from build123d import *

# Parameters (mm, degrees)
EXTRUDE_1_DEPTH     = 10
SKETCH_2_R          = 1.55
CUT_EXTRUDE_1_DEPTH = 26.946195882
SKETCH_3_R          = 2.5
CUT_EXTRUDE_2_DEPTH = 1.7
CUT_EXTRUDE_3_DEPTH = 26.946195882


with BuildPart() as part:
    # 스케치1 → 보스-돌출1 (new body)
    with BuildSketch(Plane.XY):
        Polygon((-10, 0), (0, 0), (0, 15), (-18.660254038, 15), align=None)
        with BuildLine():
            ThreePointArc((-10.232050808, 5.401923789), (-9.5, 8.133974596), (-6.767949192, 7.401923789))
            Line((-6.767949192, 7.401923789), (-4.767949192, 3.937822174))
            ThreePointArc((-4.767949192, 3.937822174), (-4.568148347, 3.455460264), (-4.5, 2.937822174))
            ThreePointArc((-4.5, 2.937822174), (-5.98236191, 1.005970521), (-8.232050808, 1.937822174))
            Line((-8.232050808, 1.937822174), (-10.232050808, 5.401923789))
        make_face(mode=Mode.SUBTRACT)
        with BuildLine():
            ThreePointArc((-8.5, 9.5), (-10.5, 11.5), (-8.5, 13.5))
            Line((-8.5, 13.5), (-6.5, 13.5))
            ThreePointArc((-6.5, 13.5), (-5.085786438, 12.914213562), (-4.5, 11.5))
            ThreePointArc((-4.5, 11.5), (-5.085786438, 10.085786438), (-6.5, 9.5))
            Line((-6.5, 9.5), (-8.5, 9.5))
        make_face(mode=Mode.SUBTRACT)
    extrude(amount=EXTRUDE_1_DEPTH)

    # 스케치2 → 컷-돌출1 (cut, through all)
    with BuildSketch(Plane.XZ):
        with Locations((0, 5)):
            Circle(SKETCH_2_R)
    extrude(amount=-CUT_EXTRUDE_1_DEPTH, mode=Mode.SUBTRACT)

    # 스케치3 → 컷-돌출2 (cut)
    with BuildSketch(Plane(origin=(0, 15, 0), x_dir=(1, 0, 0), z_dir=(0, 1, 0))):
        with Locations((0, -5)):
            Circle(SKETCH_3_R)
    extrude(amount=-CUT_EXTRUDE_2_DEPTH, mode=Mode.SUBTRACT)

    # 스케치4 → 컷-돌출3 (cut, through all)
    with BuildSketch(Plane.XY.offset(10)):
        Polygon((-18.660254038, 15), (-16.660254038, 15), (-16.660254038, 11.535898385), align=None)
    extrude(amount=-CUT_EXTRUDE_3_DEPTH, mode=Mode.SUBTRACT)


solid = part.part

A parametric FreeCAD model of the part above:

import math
import FreeCAD as App
import Part
import Sketcher
Q = App.Units.Quantity

doc = App.newDocument("Part")
body = doc.addObject("PartDesign::Body", "Body")

# Sketch on XY plane
sketch1 = body.newObject("Sketcher::SketchObject", "Sketch")
sketch1.AttachmentSupport = (doc.getObject("XY_Plane"), [""])
sketch1.MapMode = "FlatFace"
sketch1.addGeometry([
    Part.LineSegment(App.Vector(-10, 0, 0), App.Vector(0, 0, 0)),  # 0
    Part.LineSegment(App.Vector(0, 0, 0), App.Vector(0, 15, 0)),  # 1
    Part.LineSegment(App.Vector(0, 15, 0), App.Vector(-18.7, 15, 0)),  # 2
    Part.LineSegment(App.Vector(-18.7, 15, 0), App.Vector(-10, 0, 0)),  # 3
    Part.LineSegment(App.Vector(-8.2, 1.9, 0), App.Vector(-10.2, 5.4, 0)),  # 4
    Part.ArcOfCircle(Part.Circle(App.Vector(-8.5, 6.4, 0), App.Vector(0, 0, 1), 2), math.radians(30), math.radians(210)),  # 5
    Part.LineSegment(App.Vector(-6.8, 7.4, 0), App.Vector(-4.8, 3.9, 0)),  # 6
    Part.ArcOfCircle(Part.Circle(App.Vector(-6.5, 2.9, 0), App.Vector(0, 0, 1), 2), math.radians(0), math.radians(30)),  # 7
    Part.ArcOfCircle(Part.Circle(App.Vector(-6.5, 2.9, 0), App.Vector(0, 0, 1), 2), math.radians(-150), math.radians(0)),  # 8
    Part.LineSegment(App.Vector(-6.5, 9.5, 0), App.Vector(-8.5, 9.5, 0)),  # 9
    Part.ArcOfCircle(Part.Circle(App.Vector(-8.5, 11.5, 0), App.Vector(0, 0, 1), 2), math.radians(90), math.radians(270)),  # 10
    Part.LineSegment(App.Vector(-8.5, 13.5, 0), App.Vector(-6.5, 13.5, 0)),  # 11
    Part.ArcOfCircle(Part.Circle(App.Vector(-6.5, 11.5, 0), App.Vector(0, 0, 1), 2), math.radians(0), math.radians(90)),  # 12
    Part.ArcOfCircle(Part.Circle(App.Vector(-6.5, 11.5, 0), App.Vector(0, 0, 1), 2), math.radians(-90), math.radians(0)),  # 13
], False)
sketch1.addConstraint([
    Sketcher.Constraint("Coincident", 0, 2, 1, 1),
    Sketcher.Constraint("Coincident", 1, 2, 2, 1),
    Sketcher.Constraint("Coincident", 2, 2, 3, 1),
    Sketcher.Constraint("Coincident", 3, 2, 0, 1),
    Sketcher.Constraint("Tangent", 4, 2, 5, 2),
    Sketcher.Constraint("Tangent", 5, 1, 6, 1),
    Sketcher.Constraint("Tangent", 6, 2, 7, 2),
    Sketcher.Constraint("Tangent", 7, 1, 8, 2),
    Sketcher.Constraint("Tangent", 8, 1, 4, 1),
    Sketcher.Constraint("Tangent", 9, 2, 10, 2),
    Sketcher.Constraint("Tangent", 10, 1, 11, 1),
    Sketcher.Constraint("Tangent", 11, 2, 12, 2),
    Sketcher.Constraint("Tangent", 12, 1, 13, 2),
    Sketcher.Constraint("Tangent", 13, 1, 9, 1),
    Sketcher.Constraint("Horizontal", 0),
    Sketcher.Constraint("Vertical", 1),
    Sketcher.Constraint("Horizontal", 2),
    Sketcher.Constraint("Horizontal", 9),
    Sketcher.Constraint("Horizontal", 11),
    Sketcher.Constraint("Coincident", 0, 2, -1, 1),
    Sketcher.Constraint("Equal", 5, 7),
    Sketcher.Constraint("Equal", 7, 8),
    Sketcher.Constraint("Equal", 8, 10),
    Sketcher.Constraint("Equal", 10, 12),
    Sketcher.Constraint("Parallel", 3, 4),
    Sketcher.Constraint("Horizontal", 8, 3, 7, 1),
    Sketcher.Constraint("Horizontal", 13, 3, 12, 1),
    Sketcher.Constraint("Vertical", 5, 3, 10, 3),
    Sketcher.Constraint("Vertical", 8, 3, 12, 3),
    Sketcher.Constraint("Radius", 5, 2.0),
    Sketcher.Constraint("DistanceX", 0, 1, 0, 2, 10.0),
    Sketcher.Constraint("DistanceX", 9, 2, 9, 1, 2.0),
    Sketcher.Constraint("DistanceY", 1, 1, 1, 2, 15.0),
    Sketcher.Constraint("Angle", 3, Q("-60 deg")),
    Sketcher.Constraint("DistanceX", 5, 3, -1, 1, 8.5),
    Sketcher.Constraint("DistanceY", -1, 1, 10, 3, 11.5),
    Sketcher.Constraint("DistanceY", -1, 1, 5, 3, 6.401924),
])
pad1 = body.newObject("PartDesign::Pad", "Pad")
pad1.Profile = sketch1
pad1.Length = 10

# Sketch on XZ plane
sketch2 = body.newObject("Sketcher::SketchObject", "Sketch001")
sketch2.AttachmentSupport = (doc.getObject("XZ_Plane"), [""])
sketch2.MapMode = "FlatFace"
sketch2.addGeometry(Part.Circle(App.Vector(0, 5, 0), App.Vector(0, 0, 1), 1.6), False)
sketch2.addConstraint([
    Sketcher.Constraint("PointOnObject", 0, 3, -2),
    Sketcher.Constraint("Diameter", 0, 3.1),
    Sketcher.Constraint("DistanceY", -1, 1, 0, 3, 5.0),
])
pocket1 = body.newObject("PartDesign::Pocket", "Pocket")
pocket1.Profile = sketch2
pocket1.Type = "ThroughAll"

# Sketch on XZ plane
sketch3 = body.newObject("Sketcher::SketchObject", "Sketch002")
sketch3.AttachmentSupport = (doc.getObject("XZ_Plane"), [""])
sketch3.MapMode = "FlatFace"
sketch3.AttachmentOffset = App.Placement(App.Vector(0, 0, -15), App.Rotation())
sketch3.addGeometry(Part.Circle(App.Vector(0, 5, 0), App.Vector(0, 0, 1), 2.5), False)
sketch3.addConstraint([
    Sketcher.Constraint("PointOnObject", 0, 3, -2),
    Sketcher.Constraint("Diameter", 0, 5.0),
    Sketcher.Constraint("DistanceY", -1, 1, 0, 3, 5.0),
])
pocket2 = body.newObject("PartDesign::Pocket", "Pocket001")
pocket2.Profile = sketch3
pocket2.Length = 1.7
pocket2.Reversed = True

# Sketch on XY plane
sketch4 = body.newObject("Sketcher::SketchObject", "Sketch003")
sketch4.AttachmentSupport = (doc.getObject("XY_Plane"), [""])
sketch4.MapMode = "FlatFace"
sketch4.AttachmentOffset = App.Placement(App.Vector(0, 0, 10), App.Rotation())
sketch4.addGeometry([
    Part.LineSegment(App.Vector(-16.7, 15, 0), App.Vector(-18.7, 15, 0)),
    Part.LineSegment(App.Vector(-18.7, 15, 0), App.Vector(-16.7, 11.5, 0)),
    Part.LineSegment(App.Vector(-16.7, 11.5, 0), App.Vector(-16.7, 15, 0)),
], False)
sketch4.addConstraint([
    Sketcher.Constraint("Coincident", 0, 2, 1, 1),
    Sketcher.Constraint("Coincident", 1, 2, 2, 1),
    Sketcher.Constraint("Coincident", 2, 2, 0, 1),
    Sketcher.Constraint("Horizontal", 0),
    Sketcher.Constraint("Vertical", 2),
    Sketcher.Constraint("DistanceX", 0, 2, 0, 1, 2.0),
    Sketcher.Constraint("Angle", 1, Q("-60 deg")),
    Sketcher.Constraint("DistanceY", -1, 1, 0, 2, 15.0),
    Sketcher.Constraint("DistanceX", 0, 2, -1, 1, 18.660254),
])
pocket3 = body.newObject("PartDesign::Pocket", "Pocket002")
pocket3.Profile = sketch4
pocket3.Type = "ThroughAll"

doc.recompute()
